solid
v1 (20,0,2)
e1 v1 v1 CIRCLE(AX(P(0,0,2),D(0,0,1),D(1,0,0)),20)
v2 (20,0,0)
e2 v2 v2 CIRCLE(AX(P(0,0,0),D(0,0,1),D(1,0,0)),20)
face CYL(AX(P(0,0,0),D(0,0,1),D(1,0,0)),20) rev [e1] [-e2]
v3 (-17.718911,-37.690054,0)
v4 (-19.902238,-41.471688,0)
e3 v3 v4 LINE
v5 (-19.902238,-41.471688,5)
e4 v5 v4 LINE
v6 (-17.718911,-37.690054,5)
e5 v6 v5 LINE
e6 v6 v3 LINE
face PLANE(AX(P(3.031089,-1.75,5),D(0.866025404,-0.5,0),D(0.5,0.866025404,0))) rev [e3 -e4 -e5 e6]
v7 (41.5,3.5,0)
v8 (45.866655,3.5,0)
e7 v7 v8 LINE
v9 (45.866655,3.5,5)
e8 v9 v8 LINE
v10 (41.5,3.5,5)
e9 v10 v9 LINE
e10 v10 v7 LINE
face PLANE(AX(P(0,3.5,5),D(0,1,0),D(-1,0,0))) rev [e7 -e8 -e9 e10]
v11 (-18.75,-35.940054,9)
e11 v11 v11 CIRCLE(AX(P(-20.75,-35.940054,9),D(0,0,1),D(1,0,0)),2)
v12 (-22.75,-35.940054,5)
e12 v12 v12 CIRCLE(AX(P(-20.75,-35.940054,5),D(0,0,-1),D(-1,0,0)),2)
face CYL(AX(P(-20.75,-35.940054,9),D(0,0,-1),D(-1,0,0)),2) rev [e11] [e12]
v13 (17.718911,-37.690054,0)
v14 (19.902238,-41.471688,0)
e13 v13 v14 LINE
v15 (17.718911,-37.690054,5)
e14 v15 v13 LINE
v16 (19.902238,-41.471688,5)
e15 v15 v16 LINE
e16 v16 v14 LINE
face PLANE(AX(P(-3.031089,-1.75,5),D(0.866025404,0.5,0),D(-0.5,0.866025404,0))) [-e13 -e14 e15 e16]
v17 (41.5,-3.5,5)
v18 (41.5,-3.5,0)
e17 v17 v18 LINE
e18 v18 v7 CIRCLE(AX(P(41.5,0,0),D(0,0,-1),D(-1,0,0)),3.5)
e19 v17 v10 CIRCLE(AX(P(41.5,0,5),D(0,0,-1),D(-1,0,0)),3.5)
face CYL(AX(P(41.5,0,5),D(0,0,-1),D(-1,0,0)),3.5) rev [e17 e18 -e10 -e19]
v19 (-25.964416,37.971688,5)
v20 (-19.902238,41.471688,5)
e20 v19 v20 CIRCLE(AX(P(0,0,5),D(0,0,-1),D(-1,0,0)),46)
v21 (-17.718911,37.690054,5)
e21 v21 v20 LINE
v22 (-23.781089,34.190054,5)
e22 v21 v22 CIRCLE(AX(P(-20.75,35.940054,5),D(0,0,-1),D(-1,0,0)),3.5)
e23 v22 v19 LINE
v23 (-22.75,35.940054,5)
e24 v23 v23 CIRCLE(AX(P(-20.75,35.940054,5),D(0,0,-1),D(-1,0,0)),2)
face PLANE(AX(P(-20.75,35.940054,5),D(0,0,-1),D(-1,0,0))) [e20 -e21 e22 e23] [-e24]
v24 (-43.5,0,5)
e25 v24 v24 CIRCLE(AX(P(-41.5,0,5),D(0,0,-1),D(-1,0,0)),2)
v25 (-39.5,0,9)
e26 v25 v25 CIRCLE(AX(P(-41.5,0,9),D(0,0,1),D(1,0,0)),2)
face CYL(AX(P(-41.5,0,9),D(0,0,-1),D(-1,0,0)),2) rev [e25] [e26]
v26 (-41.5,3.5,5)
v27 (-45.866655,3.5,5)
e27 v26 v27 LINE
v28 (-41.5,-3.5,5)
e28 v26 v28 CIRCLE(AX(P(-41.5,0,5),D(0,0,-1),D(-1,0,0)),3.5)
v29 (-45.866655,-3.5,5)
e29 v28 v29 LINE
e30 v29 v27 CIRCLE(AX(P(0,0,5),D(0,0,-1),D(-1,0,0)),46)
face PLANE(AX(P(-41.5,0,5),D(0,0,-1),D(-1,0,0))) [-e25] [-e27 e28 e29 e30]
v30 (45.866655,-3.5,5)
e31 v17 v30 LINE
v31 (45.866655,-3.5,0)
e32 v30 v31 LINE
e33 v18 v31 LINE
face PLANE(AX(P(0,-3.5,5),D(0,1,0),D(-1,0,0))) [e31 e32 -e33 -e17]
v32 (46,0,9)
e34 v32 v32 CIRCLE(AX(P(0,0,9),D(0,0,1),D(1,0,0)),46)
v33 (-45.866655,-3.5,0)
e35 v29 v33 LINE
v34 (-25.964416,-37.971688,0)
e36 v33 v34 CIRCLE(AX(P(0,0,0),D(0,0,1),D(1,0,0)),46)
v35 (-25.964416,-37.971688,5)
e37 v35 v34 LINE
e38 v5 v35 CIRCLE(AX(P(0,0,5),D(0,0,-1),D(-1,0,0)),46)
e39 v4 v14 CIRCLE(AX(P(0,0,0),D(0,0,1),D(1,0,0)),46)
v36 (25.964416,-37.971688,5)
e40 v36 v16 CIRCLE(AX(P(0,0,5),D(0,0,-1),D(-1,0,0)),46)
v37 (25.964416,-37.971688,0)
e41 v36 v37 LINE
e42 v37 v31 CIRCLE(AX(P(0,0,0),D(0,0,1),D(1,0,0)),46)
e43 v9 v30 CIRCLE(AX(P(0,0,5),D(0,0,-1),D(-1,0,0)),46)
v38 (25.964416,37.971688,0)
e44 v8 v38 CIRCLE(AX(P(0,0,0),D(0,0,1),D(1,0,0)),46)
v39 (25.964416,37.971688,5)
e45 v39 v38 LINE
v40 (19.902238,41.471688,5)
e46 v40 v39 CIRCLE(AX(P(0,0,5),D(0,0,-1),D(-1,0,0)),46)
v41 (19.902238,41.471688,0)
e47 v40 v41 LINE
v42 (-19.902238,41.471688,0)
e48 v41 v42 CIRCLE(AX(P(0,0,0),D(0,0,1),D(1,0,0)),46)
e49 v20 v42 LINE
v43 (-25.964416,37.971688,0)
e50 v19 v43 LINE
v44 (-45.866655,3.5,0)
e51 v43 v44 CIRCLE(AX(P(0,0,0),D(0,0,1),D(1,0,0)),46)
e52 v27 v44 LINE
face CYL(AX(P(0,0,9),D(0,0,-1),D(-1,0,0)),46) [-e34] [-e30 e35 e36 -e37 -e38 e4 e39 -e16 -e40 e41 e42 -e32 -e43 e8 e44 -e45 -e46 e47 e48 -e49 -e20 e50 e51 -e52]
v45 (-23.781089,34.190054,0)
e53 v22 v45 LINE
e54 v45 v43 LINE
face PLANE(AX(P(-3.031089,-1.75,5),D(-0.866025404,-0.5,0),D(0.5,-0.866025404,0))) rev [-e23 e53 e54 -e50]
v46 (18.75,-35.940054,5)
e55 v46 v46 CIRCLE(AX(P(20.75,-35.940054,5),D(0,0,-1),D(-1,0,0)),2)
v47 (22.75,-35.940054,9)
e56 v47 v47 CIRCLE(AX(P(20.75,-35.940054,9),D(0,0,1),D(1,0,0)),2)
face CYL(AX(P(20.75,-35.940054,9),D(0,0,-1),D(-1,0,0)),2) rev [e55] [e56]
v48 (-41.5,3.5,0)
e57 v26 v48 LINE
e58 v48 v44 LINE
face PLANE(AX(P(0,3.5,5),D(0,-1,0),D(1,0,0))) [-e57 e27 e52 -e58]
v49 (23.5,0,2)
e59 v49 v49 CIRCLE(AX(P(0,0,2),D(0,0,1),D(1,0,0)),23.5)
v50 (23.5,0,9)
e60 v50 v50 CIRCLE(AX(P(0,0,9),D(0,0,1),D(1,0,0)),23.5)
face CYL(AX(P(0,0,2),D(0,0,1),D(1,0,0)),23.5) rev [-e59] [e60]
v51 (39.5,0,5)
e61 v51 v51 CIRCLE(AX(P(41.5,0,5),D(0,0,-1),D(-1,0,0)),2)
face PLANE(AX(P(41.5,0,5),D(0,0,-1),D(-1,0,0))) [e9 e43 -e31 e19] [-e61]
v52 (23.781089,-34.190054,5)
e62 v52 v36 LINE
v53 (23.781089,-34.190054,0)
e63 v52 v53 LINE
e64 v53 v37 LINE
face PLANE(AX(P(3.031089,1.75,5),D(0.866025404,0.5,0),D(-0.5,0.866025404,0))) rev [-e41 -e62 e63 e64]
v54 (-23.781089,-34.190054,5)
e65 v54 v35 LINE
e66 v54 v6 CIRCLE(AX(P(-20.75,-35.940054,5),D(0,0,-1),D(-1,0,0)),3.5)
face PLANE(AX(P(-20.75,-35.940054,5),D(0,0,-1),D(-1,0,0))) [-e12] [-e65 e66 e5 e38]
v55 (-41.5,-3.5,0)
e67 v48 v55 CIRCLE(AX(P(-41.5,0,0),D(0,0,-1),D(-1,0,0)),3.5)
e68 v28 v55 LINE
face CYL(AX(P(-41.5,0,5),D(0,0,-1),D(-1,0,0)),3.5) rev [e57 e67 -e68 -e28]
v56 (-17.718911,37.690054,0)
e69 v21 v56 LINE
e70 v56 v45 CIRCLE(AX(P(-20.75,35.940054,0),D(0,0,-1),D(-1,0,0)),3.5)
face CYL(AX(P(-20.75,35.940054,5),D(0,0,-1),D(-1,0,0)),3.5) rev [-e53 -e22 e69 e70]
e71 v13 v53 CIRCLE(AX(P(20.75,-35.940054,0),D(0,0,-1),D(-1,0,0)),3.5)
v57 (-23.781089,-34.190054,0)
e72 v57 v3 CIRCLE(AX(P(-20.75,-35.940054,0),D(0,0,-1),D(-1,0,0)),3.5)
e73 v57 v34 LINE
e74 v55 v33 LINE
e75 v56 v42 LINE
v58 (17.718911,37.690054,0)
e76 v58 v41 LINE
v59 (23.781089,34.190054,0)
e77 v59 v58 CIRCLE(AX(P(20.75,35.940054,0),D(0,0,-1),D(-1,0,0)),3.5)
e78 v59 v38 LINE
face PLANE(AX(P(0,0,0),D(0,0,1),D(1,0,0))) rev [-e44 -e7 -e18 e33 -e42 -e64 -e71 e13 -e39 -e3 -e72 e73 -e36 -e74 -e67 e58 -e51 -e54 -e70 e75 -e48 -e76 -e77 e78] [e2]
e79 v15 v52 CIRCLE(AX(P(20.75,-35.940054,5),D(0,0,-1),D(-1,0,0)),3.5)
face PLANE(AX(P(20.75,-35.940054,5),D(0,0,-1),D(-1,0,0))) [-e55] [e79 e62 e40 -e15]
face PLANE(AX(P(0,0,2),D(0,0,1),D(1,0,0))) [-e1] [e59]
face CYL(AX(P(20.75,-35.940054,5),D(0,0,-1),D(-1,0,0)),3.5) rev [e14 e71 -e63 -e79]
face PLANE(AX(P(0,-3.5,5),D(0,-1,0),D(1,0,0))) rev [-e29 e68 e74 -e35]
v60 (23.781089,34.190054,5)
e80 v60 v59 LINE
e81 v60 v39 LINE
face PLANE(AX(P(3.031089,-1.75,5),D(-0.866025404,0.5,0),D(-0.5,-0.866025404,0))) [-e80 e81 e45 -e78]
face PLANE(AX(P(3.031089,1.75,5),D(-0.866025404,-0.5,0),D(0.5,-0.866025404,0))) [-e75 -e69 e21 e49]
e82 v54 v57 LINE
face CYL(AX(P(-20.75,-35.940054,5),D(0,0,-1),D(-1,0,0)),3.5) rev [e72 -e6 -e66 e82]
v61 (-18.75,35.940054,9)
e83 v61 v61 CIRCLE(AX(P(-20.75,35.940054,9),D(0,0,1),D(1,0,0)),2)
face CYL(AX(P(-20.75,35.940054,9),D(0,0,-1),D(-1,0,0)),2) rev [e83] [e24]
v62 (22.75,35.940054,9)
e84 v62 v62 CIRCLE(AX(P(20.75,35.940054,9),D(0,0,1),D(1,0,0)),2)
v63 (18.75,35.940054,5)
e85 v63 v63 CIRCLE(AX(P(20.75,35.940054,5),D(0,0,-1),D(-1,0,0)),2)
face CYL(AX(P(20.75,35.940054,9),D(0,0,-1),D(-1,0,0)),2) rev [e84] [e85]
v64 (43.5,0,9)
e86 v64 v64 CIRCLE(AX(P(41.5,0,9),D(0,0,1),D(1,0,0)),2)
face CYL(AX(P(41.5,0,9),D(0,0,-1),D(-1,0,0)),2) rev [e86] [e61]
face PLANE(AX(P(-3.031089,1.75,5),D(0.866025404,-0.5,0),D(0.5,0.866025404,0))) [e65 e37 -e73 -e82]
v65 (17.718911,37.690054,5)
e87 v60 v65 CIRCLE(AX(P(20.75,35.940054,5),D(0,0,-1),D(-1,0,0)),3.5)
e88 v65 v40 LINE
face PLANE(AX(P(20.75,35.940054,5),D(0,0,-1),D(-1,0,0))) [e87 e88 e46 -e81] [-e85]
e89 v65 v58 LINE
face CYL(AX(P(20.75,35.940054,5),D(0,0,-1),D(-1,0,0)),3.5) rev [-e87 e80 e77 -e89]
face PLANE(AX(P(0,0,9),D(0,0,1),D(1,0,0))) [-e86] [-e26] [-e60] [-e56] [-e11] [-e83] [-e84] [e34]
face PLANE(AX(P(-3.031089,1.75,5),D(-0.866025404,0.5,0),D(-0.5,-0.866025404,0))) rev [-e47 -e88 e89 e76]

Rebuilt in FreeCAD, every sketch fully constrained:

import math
import FreeCAD as App
import Part
import Sketcher
from FreeCAD import Vector
Q = App.Units.Quantity

doc = App.newDocument("Part")
body = doc.addObject("PartDesign::Body", "Body")

sketch1 = doc.addObject("Sketcher::SketchObject", "Sketch")
body.addObject(sketch1)
sketch1.AttachmentSupport = (doc.XY_Plane, [""])
sketch1.MapMode = "FlatFace"
sketch1.addGeometry([
    Part.Circle(Vector(0, 0, 0), Vector(0, 0, 1), 46),
    Part.Circle(Vector(-20.8, -35.9, 0), Vector(0, 0, 1), 2),
    Part.Circle(Vector(20.8, -35.9, 0), Vector(0, 0, 1), 2),
    Part.Circle(Vector(-41.5, 0, 0), Vector(0, 0, 1), 2),
    Part.Circle(Vector(-20.8, 35.9, 0), Vector(0, 0, 1), 2),
    Part.Circle(Vector(41.5, 0, 0), Vector(0, 0, 1), 2),
    Part.Circle(Vector(20.8, 35.9, 0), Vector(0, 0, 1), 2),
], False)
sketch1.addConstraint([
    Sketcher.Constraint("Coincident", 0, 3, -1, 1),
    Sketcher.Constraint("Equal", 1, 2),
    Sketcher.Constraint("Equal", 2, 3),
    Sketcher.Constraint("Equal", 3, 4),
    Sketcher.Constraint("Equal", 4, 5),
    Sketcher.Constraint("Equal", 5, 6),
    Sketcher.Constraint("Symmetric", 2, 3, 4, 3, -1, 1),
    Sketcher.Constraint("Symmetric", 3, 3, 5, 3, -1, 1),
    Sketcher.Constraint("Symmetric", 1, 3, 6, 3, -1, 1),
    Sketcher.Constraint("Symmetric", 1, 3, 2, 3, -2),
    Sketcher.Constraint("PointOnObject", 3, 3, -1),
    Sketcher.Constraint("Diameter", 0, 92.0),
    Sketcher.Constraint("Diameter", 1, 4.0),
    Sketcher.Constraint("DistanceX", 3, 3, 5, 3, 83.0),
    Sketcher.Constraint("DistanceX", 1, 3, 2, 3, 41.5),
    Sketcher.Constraint("DistanceY", 1, 3, 4, 3, 71.880109),
])
pad1 = doc.addObject("PartDesign::Pad", "Pad")
body.addObject(pad1)
pad1.Profile = sketch1
pad1.Length = 9

sketch2 = doc.addObject("Sketcher::SketchObject", "Sketch001")
body.addObject(sketch2)
sketch2.AttachmentSupport = (doc.XY_Plane, [""])
sketch2.MapMode = "FlatFace"
sketch2.AttachmentOffset = App.Placement(Vector(0, 0, 9), App.Rotation())
sketch2.addGeometry(Part.Circle(Vector(0, 0, 0), Vector(0, 0, 1), 24), False)
sketch2.addConstraint([
    Sketcher.Constraint("Coincident", 0, 3, -1, 1),
    Sketcher.Constraint("Diameter", 0, 47.0),
])
pocket1 = doc.addObject("PartDesign::Pocket", "Pocket")
body.addObject(pocket1)
pocket1.Profile = sketch2
pocket1.Length = 7

sketch3 = doc.addObject("Sketcher::SketchObject", "Sketch002")
body.addObject(sketch3)
sketch3.AttachmentSupport = (doc.XY_Plane, [""])
sketch3.MapMode = "FlatFace"
sketch3.AttachmentOffset = App.Placement(Vector(0, 0, 2), App.Rotation())
sketch3.addGeometry(Part.Circle(Vector(0, 0, 0), Vector(0, 0, 1), 20), False)
sketch3.addConstraint([
    Sketcher.Constraint("Coincident", 0, 3, -1, 1),
    Sketcher.Constraint("Diameter", 0, 40.0),
])
pocket2 = doc.addObject("PartDesign::Pocket", "Pocket001")
body.addObject(pocket2)
pocket2.Profile = sketch3
pocket2.Type = "ThroughAll"

sketch4 = doc.addObject("Sketcher::SketchObject", "Sketch003")
body.addObject(sketch4)
sketch4.AttachmentSupport = (doc.XY_Plane, [""])
sketch4.MapMode = "FlatFace"
sketch4.addGeometry([
    Part.Circle(Vector(20.8, 35.9, 0), Vector(0, 0, 1), 3.5),
    Part.Circle(Vector(-20.8, 35.9, 0), Vector(0, 0, 1), 3.5),
    Part.Circle(Vector(-41.5, 0, 0), Vector(0, 0, 1), 3.5),
    Part.Circle(Vector(-20.8, -35.9, 0), Vector(0, 0, 1), 3.5),
    Part.Circle(Vector(20.8, -35.9, 0), Vector(0, 0, 1), 3.5),
    Part.Circle(Vector(41.5, 0, 0), Vector(0, 0, 1), 3.5),
], False)
sketch4.addConstraint([
    Sketcher.Constraint("Equal", 0, 1),
    Sketcher.Constraint("Equal", 1, 2),
    Sketcher.Constraint("Equal", 2, 3),
    Sketcher.Constraint("Equal", 3, 4),
    Sketcher.Constraint("Equal", 4, 5),
    Sketcher.Constraint("Symmetric", 0, 3, 3, 3, -1, 1),
    Sketcher.Constraint("Symmetric", 1, 3, 4, 3, -1, 1),
    Sketcher.Constraint("Symmetric", 2, 3, 5, 3, -1, 1),
    Sketcher.Constraint("Symmetric", 0, 3, 1, 3, -2),
    Sketcher.Constraint("PointOnObject", 2, 3, -1),
    Sketcher.Constraint("Diameter", 0, 7.0),
    Sketcher.Constraint("DistanceX", 2, 3, 5, 3, 83.0),
    Sketcher.Constraint("DistanceX", 1, 3, 0, 3, 41.5),
    Sketcher.Constraint("DistanceY", 3, 3, 1, 3, 71.880109),
])
pocket3 = doc.addObject("PartDesign::Pocket", "Pocket002")
body.addObject(pocket3)
pocket3.Profile = sketch4
pocket3.Length = 5
pocket3.Reversed = True

sketch5 = doc.addObject("Sketcher::SketchObject", "Sketch004")
body.addObject(sketch5)
sketch5.AttachmentSupport = (doc.XY_Plane, [""])
sketch5.MapMode = "FlatFace"
sketch5.addGeometry([
    Part.LineSegment(Vector(41.5, 3.5, 0), Vector(45.9, 3.5, 0)),
    Part.ArcOfCircle(Part.Circle(Vector(0, 0, 0), Vector(0, 0, 1), 46), math.radians(-4.36), math.radians(4.36)),
    Part.LineSegment(Vector(45.9, -3.5, 0), Vector(41.5, -3.5, 0)),
    Part.ArcOfCircle(Part.Circle(Vector(41.5, 0, 0), Vector(0, 0, 1), 3.5), math.radians(-90), math.radians(90)),
    Part.ArcOfCircle(Part.Circle(Vector(20.8, 35.9, 0), Vector(0, 0, 1), 3.5), math.radians(-30), math.radians(150)),
    Part.LineSegment(Vector(17.7, 37.7, 0), Vector(19.9, 41.5, 0)),
    Part.ArcOfCircle(Part.Circle(Vector(0, 0, 0), Vector(0, 0, 1), 46), math.radians(55.64), math.radians(64.36)),
    Part.LineSegment(Vector(26, 38, 0), Vector(23.8, 34.2, 0)),
    Part.ArcOfCircle(Part.Circle(Vector(0, 0, 0), Vector(0, 0, 1), 46), math.radians(115.64), math.radians(124.36)),
    Part.LineSegment(Vector(-19.9, 41.5, 0), Vector(-17.7, 37.7, 0)),
    Part.ArcOfCircle(Part.Circle(Vector(-20.8, 35.9, 0), Vector(0, 0, 1), 3.5), math.radians(30), math.radians(180)),
    Part.ArcOfCircle(Part.Circle(Vector(-20.8, 35.9, 0), Vector(0, 0, 1), 3.5), math.radians(180), math.radians(210)),
    Part.LineSegment(Vector(-23.8, 34.2, 0), Vector(-26, 38, 0)),
    Part.ArcOfCircle(Part.Circle(Vector(0, 0, 0), Vector(0, 0, 1), 46), math.radians(175.64), math.radians(180)),
    Part.LineSegment(Vector(-45.9, 3.5, 0), Vector(-41.5, 3.5, 0)),
    Part.ArcOfCircle(Part.Circle(Vector(-41.5, 0, 0), Vector(0, 0, 1), 3.5), math.radians(90), math.radians(180)),
    Part.ArcOfCircle(Part.Circle(Vector(-41.5, 0, 0), Vector(0, 0, 1), 3.5), math.radians(-180), math.radians(-90)),
    Part.LineSegment(Vector(-41.5, -3.5, 0), Vector(-45.9, -3.5, 0)),
    Part.ArcOfCircle(Part.Circle(Vector(0, 0, 0), Vector(0, 0, 1), 46), math.radians(-180), math.radians(-175.64)),
    Part.LineSegment(Vector(-17.7, -37.7, 0), Vector(-19.9, -41.5, 0)),
    Part.ArcOfCircle(Part.Circle(Vector(0, 0, 0), Vector(0, 0, 1), 46), math.radians(-124.36), math.radians(-115.64)),
    Part.LineSegment(Vector(-26, -38, 0), Vector(-23.8, -34.2, 0)),
    Part.ArcOfCircle(Part.Circle(Vector(-20.8, -35.9, 0), Vector(0, 0, 1), 3.5), math.radians(150), math.radians(180)),
    Part.ArcOfCircle(Part.Circle(Vector(-20.8, -35.9, 0), Vector(0, 0, 1), 3.5), math.radians(180), math.radians(330)),
    Part.LineSegment(Vector(23.8, -34.2, 0), Vector(26, -38, 0)),
    Part.ArcOfCircle(Part.Circle(Vector(0, 0, 0), Vector(0, 0, 1), 46), math.radians(-64.36), math.radians(-55.64)),
    Part.LineSegment(Vector(19.9, -41.5, 0), Vector(17.7, -37.7, 0)),
    Part.ArcOfCircle(Part.Circle(Vector(20.8, -35.9, 0), Vector(0, 0, 1), 3.5), math.radians(-150), math.radians(30)),
], False)
sketch5.addConstraint([
    Sketcher.Constraint("Coincident", 0, 2, 1, 2),
    Sketcher.Constraint("Coincident", 1, 1, 2, 1),
    Sketcher.Constraint("Tangent", 2, 2, 3, 1),
    Sketcher.Constraint("Tangent", 3, 2, 0, 1),
    Sketcher.Constraint("Tangent", 4, 2, 5, 1),
    Sketcher.Constraint("Coincident", 5, 2, 6, 2),
    Sketcher.Constraint("Coincident", 6, 1, 7, 1),
    Sketcher.Constraint("Tangent", 7, 2, 4, 1),
    Sketcher.Constraint("Coincident", 8, 1, 9, 1),
    Sketcher.Constraint("Tangent", 9, 2, 10, 1),
    Sketcher.Constraint("Tangent", 10, 2, 11, 1),
    Sketcher.Constraint("Tangent", 11, 2, 12, 1),
    Sketcher.Constraint("Coincident", 12, 2, 8, 2),
    Sketcher.Constraint("Coincident", 13, 1, 14, 1),
    Sketcher.Constraint("Tangent", 14, 2, 15, 1),
    Sketcher.Constraint("Tangent", 15, 2, 16, 1),
    Sketcher.Constraint("Tangent", 16, 2, 17, 1),
    Sketcher.Constraint("Coincident", 17, 2, 18, 2),
    Sketcher.Constraint("Tangent", 18, 1, 13, 2),
    Sketcher.Constraint("Coincident", 19, 2, 20, 2),
    Sketcher.Constraint("Coincident", 20, 1, 21, 1),
    Sketcher.Constraint("Tangent", 21, 2, 22, 1),
    Sketcher.Constraint("Tangent", 22, 2, 23, 1),
    Sketcher.Constraint("Tangent", 23, 2, 19, 1),
    Sketcher.Constraint("Coincident", 24, 2, 25, 2),
    Sketcher.Constraint("Coincident", 25, 1, 26, 1),
    Sketcher.Constraint("Tangent", 26, 2, 27, 1),
    Sketcher.Constraint("Tangent", 27, 2, 24, 1),
    Sketcher.Constraint("Horizontal", 0),
    Sketcher.Constraint("Horizontal", 2),
    Sketcher.Constraint("Horizontal", 14),
    Sketcher.Constraint("Horizontal", 17),
    Sketcher.Constraint("Coincident", 1, 3, -1, 1),
    Sketcher.Constraint("Coincident", 6, 3, -1, 1),
    Sketcher.Constraint("Coincident", 8, 3, -1, 1),
    Sketcher.Constraint("Coincident", 13, 3, -1, 1),
    Sketcher.Constraint("Coincident", 20, 3, -1, 1),
    Sketcher.Constraint("Coincident", 25, 3, -1, 1),
    Sketcher.Constraint("Equal", 3, 4),
    Sketcher.Constraint("Equal", 1, 6),
    Sketcher.Constraint("Equal", 6, 8),
    Sketcher.Constraint("Equal", 4, 10),
    Sketcher.Constraint("Equal", 10, 11),
    Sketcher.Constraint("Equal", 8, 13),
    Sketcher.Constraint("Equal", 11, 15),
    Sketcher.Constraint("Equal", 15, 16),
    Sketcher.Constraint("Equal", 13, 18),
    Sketcher.Constraint("Equal", 18, 20),
    Sketcher.Constraint("Equal", 16, 22),
    Sketcher.Constraint("Equal", 22, 23),
    Sketcher.Constraint("Equal", 20, 25),
    Sketcher.Constraint("Equal", 23, 27),
    Sketcher.Constraint("Symmetric", 3, 3, 15, 3, -1, 1),
    Sketcher.Constraint("Symmetric", 4, 3, 22, 3, -1, 1),
    Sketcher.Constraint("Symmetric", 10, 3, 27, 3, -1, 1),
    Sketcher.Constraint("Symmetric", 4, 3, 10, 3, -2),
    Sketcher.Constraint("PointOnObject", 3, 3, -1),
    Sketcher.Constraint("PointOnObject", 15, 2, -1),
    Sketcher.Constraint("PointOnObject", 18, 1, -1),
    Sketcher.Constraint("Parallel", 5, 7),
    Sketcher.Constraint("Parallel", 9, 12),
    Sketcher.Constraint("Parallel", 7, 19),
    Sketcher.Constraint("Parallel", 19, 21),
    Sketcher.Constraint("Parallel", 12, 24),
    Sketcher.Constraint("Parallel", 24, 26),
    Sketcher.Constraint("Horizontal", 5, 2, 8, 1),
    Sketcher.Constraint("Horizontal", 11, 3, 10, 2),
    Sketcher.Constraint("Horizontal", 27, 3, 22, 2),
    Sketcher.Constraint("Equal", 5, 7),
    Sketcher.Constraint("Radius", 1, 46.0),
    Sketcher.Constraint("Radius", 3, 3.5),
    Sketcher.Constraint("Angle", 5, Q("60 deg")),
    Sketcher.Constraint("DistanceX", 15, 2, -1, 1, 45.0),
    Sketcher.Constraint("DistanceX", 10, 3, 4, 3, 41.5),
])
pocket4 = doc.addObject("PartDesign::Pocket", "Pocket003")
body.addObject(pocket4)
pocket4.Profile = sketch5
pocket4.Length = 5
pocket4.Reversed = True

doc.recompute()
